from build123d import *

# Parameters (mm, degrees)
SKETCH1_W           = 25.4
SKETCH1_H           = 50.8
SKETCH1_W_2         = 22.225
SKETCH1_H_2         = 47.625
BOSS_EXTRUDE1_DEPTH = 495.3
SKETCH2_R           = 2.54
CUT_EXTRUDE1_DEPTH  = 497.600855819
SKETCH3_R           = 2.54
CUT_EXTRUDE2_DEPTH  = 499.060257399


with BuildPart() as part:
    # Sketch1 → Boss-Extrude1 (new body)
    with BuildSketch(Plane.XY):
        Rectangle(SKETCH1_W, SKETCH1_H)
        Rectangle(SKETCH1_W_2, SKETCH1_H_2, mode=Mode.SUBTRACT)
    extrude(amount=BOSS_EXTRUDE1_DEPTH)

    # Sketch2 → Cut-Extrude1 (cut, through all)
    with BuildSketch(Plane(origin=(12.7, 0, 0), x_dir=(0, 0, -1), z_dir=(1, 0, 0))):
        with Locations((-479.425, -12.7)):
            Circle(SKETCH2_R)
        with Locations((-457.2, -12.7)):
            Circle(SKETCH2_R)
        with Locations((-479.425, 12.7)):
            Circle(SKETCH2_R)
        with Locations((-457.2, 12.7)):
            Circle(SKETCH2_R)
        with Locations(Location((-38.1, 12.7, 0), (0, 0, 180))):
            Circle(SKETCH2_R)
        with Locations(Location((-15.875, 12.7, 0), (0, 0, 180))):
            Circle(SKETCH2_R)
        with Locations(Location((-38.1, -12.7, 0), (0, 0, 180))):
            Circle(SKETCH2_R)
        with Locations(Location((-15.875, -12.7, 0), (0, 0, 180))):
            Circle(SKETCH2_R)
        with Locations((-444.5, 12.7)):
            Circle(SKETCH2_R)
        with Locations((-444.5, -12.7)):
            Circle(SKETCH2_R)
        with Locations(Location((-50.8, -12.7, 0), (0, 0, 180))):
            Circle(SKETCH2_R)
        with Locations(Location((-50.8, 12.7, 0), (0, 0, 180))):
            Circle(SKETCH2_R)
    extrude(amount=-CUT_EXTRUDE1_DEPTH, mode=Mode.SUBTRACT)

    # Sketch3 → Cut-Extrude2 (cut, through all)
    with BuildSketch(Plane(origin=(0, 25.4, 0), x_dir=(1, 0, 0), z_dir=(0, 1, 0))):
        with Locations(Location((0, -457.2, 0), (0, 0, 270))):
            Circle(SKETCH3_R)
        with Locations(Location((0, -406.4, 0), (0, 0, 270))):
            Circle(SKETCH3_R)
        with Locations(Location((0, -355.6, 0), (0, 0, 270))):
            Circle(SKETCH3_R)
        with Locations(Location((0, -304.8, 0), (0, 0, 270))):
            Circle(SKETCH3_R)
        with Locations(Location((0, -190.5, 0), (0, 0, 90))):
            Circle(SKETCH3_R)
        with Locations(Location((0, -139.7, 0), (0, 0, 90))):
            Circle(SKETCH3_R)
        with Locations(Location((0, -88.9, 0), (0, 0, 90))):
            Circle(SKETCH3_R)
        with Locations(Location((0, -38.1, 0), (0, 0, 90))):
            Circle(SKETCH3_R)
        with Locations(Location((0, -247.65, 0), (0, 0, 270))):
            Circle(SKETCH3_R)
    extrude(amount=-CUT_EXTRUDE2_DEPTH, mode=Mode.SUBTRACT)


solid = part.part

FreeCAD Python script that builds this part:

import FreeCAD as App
import Part
import Sketcher

V = App.Vector
Q = App.Units.Quantity

doc = App.newDocument("Part")
body = doc.addObject("PartDesign::Body", "Body")

sketch1 = body.newObject("Sketcher::SketchObject", "Sketch")
sketch1.AttachmentSupport = (doc.getObject("XY_Plane"), [""])
sketch1.MapMode = "FlatFace"
sketch1.addGeometry(Part.LineSegment(V(-12.7, 25.4, 0), V(-12.7, -25.4, 0)), False)
sketch1.addGeometry(Part.LineSegment(V(-12.7, -25.4, 0), V(12.7, -25.4, 0)), False)
sketch1.addGeometry(Part.LineSegment(V(12.7, -25.4, 0), V(12.7, 25.4, 0)), False)
sketch1.addGeometry(Part.LineSegment(V(12.7, 25.4, 0), V(-12.7, 25.4, 0)), False)
sketch1.addGeometry(Part.LineSegment(V(11.1125, -23.8125, 0), V(-11.1125, -23.8125, 0)), False)
sketch1.addGeometry(Part.LineSegment(V(-11.1125, -23.8125, 0), V(-11.1125, 23.8125, 0)), False)
sketch1.addGeometry(Part.LineSegment(V(-11.1125, 23.8125, 0), V(11.1125, 23.8125, 0)), False)
sketch1.addGeometry(Part.LineSegment(V(11.1125, 23.8125, 0), V(11.1125, -23.8125, 0)), False)
sketch1.addConstraint(Sketcher.Constraint("Coincident", 0, 2, 1, 1))
sketch1.addConstraint(Sketcher.Constraint("Coincident", 1, 2, 2, 1))
sketch1.addConstraint(Sketcher.Constraint("Coincident", 2, 2, 3, 1))
sketch1.addConstraint(Sketcher.Constraint("Coincident", 3, 2, 0, 1))
sketch1.addConstraint(Sketcher.Constraint("Coincident", 4, 2, 5, 1))
sketch1.addConstraint(Sketcher.Constraint("Coincident", 5, 2, 6, 1))
sketch1.addConstraint(Sketcher.Constraint("Coincident", 6, 2, 7, 1))
sketch1.addConstraint(Sketcher.Constraint("Coincident", 7, 2, 4, 1))
sketch1.addConstraint(Sketcher.Constraint("Vertical", 0))
sketch1.addConstraint(Sketcher.Constraint("Horizontal", 1))
sketch1.addConstraint(Sketcher.Constraint("Vertical", 2))
sketch1.addConstraint(Sketcher.Constraint("Horizontal", 3))
sketch1.addConstraint(Sketcher.Constraint("Horizontal", 4))
sketch1.addConstraint(Sketcher.Constraint("Vertical", 5))
sketch1.addConstraint(Sketcher.Constraint("Horizontal", 6))
sketch1.addConstraint(Sketcher.Constraint("Vertical", 7))
sketch1.addConstraint(Sketcher.Constraint("Symmetric", 0, 2, 2, 2, -1, 1))
sketch1.addConstraint(Sketcher.Constraint("Symmetric", 4, 2, 6, 2, -1, 1))
sketch1.addConstraint(Sketcher.Constraint("DistanceX", 1, 1, 1, 2, Q("1 in")))
sketch1.addConstraint(Sketcher.Constraint("DistanceY", 0, 2, 0, 1, Q("2 in")))
sketch1.addConstraint(Sketcher.Constraint("DistanceX", 4, 2, 4, 1, Q("0.875 in")))
sketch1.addConstraint(Sketcher.Constraint("DistanceY", 5, 1, 5, 2, Q("1.875 in")))
pad1 = body.newObject("PartDesign::Pad", "Pad")
pad1.Profile = sketch1
pad1.Length = Q("19.5 in")

sketch2 = body.newObject("Sketcher::SketchObject", "Sketch001")
sketch2.AttachmentSupport = (doc.getObject("YZ_Plane"), [""])
sketch2.MapMode = "FlatFace"
sketch2.AttachmentOffset = App.Placement(V(0, 0, 0.5 * 25.4), App.Rotation())
sketch2.addGeometry(Part.Circle(V(-12.7, 479.425, 0), V(0, 0, 1), 2.54), False)
sketch2.addGeometry(Part.Circle(V(-12.7, 457.2, 0), V(0, 0, 1), 2.54), False)
sketch2.addGeometry(Part.Circle(V(12.7, 479.425, 0), V(0, 0, 1), 2.54), False)
sketch2.addGeometry(Part.Circle(V(12.7, 457.2, 0), V(0, 0, 1), 2.54), False)
sketch2.addGeometry(Part.Circle(V(12.7, 38.1, 0), V(0, 0, 1), 2.54), False)
sketch2.addGeometry(Part.Circle(V(12.7, 15.875, 0), V(0, 0, 1), 2.54), False)
sketch2.addGeometry(Part.Circle(V(-12.7, 38.1, 0), V(0, 0, 1), 2.54), False)
sketch2.addGeometry(Part.Circle(V(-12.7, 15.875, 0), V(0, 0, 1), 2.54), False)
sketch2.addGeometry(Part.Circle(V(12.7, 444.5, 0), V(0, 0, 1), 2.54), False)
sketch2.addGeometry(Part.Circle(V(-12.7, 444.5, 0), V(0, 0, 1), 2.54), False)
sketch2.addGeometry(Part.Circle(V(-12.7, 50.8, 0), V(0, 0, 1), 2.54), False)
sketch2.addGeometry(Part.Circle(V(12.7, 50.8, 0), V(0, 0, 1), 2.54), False)
sketch2.addConstraint(Sketcher.Constraint("Equal", 0, 1))
sketch2.addConstraint(Sketcher.Constraint("Equal", 1, 2))
sketch2.addConstraint(Sketcher.Constraint("Equal", 2, 3))
sketch2.addConstraint(Sketcher.Constraint("Equal", 3, 4))
sketch2.addConstraint(Sketcher.Constraint("Equal", 4, 5))
sketch2.addConstraint(Sketcher.Constraint("Equal", 5, 6))
sketch2.addConstraint(Sketcher.Constraint("Equal", 6, 7))
sketch2.addConstraint(Sketcher.Constraint("Equal", 7, 8))
sketch2.addConstraint(Sketcher.Constraint("Equal", 8, 9))
sketch2.addConstraint(Sketcher.Constraint("Equal", 9, 10))
sketch2.addConstraint(Sketcher.Constraint("Equal", 10, 11))
sketch2.addConstraint(Sketcher.Constraint("Symmetric", 0, 3, 2, 3, -2))
sketch2.addConstraint(Sketcher.Constraint("Symmetric", 1, 3, 3, 3, -2))
sketch2.addConstraint(Sketcher.Constraint("Symmetric", 4, 3, 6, 3, -2))
sketch2.addConstraint(Sketcher.Constraint("Symmetric", 5, 3, 7, 3, -2))
sketch2.addConstraint(Sketcher.Constraint("Symmetric", 8, 3, 9, 3, -2))
sketch2.addConstraint(Sketcher.Constraint("Symmetric", 10, 3, 11, 3, -2))
sketch2.addConstraint(Sketcher.Constraint("Vertical", 0, 3, 1, 3))
sketch2.addConstraint(Sketcher.Constraint("Vertical", 3, 3, 4, 3))
sketch2.addConstraint(Sketcher.Constraint("Vertical", 4, 3, 5, 3))
sketch2.addConstraint(Sketcher.Constraint("Vertical", 5, 3, 8, 3))
sketch2.addConstraint(Sketcher.Constraint("Vertical", 9, 3, 10, 3))
sketch2.addConstraint(Sketcher.Constraint("Diameter", 0, Q("0.2 in")))
sketch2.addConstraint(Sketcher.Constraint("DistanceY", -1, 1, 1, 3, Q("18 in")))
sketch2.addConstraint(Sketcher.Constraint("DistanceY", -1, 1, 10, 3, Q("2 in")))
sketch2.addConstraint(Sketcher.Constraint("DistanceX", 0, 3, 2, 3, Q("1 in")))
sketch2.addConstraint(Sketcher.Constraint("DistanceY", 4, 3, 8, 3, Q("16 in")))
sketch2.addConstraint(Sketcher.Constraint("DistanceY", -1, 1, 4, 3, Q("1.5 in")))
sketch2.addConstraint(Sketcher.Constraint("DistanceY", 5, 3, 2, 3, Q("18.25 in")))
sketch2.addConstraint(Sketcher.Constraint("DistanceY", -1, 1, 0, 3, Q("18.875 in")))
pocket1 = body.newObject("PartDesign::Pocket", "Pocket")
pocket1.Profile = sketch2
pocket1.Type = "ThroughAll"

sketch3 = body.newObject("Sketcher::SketchObject", "Sketch002")
sketch3.AttachmentSupport = (doc.getObject("XZ_Plane"), [""])
sketch3.MapMode = "FlatFace"
sketch3.AttachmentOffset = App.Placement(V(0, 0, -1 * 25.4), App.Rotation())
sketch3.addGeometry(Part.Circle(V(0, 457.2, 0), V(0, 0, 1), 2.54), False)
sketch3.addGeometry(Part.Circle(V(0, 406.4, 0), V(0, 0, 1), 2.54), False)
sketch3.addGeometry(Part.Circle(V(0, 355.6, 0), V(0, 0, 1), 2.54), False)
sketch3.addGeometry(Part.Circle(V(0, 304.8, 0), V(0, 0, 1), 2.54), False)
sketch3.addGeometry(Part.Circle(V(0, 190.5, 0), V(0, 0, 1), 2.54), False)
sketch3.addGeometry(Part.Circle(V(0, 139.7, 0), V(0, 0, 1), 2.54), False)
sketch3.addGeometry(Part.Circle(V(0, 88.9, 0), V(0, 0, 1), 2.54), False)
sketch3.addGeometry(Part.Circle(V(0, 38.1, 0), V(0, 0, 1), 2.54), False)
sketch3.addGeometry(Part.Circle(V(0, 247.65, 0), V(0, 0, 1), 2.54), False)
sketch3.addConstraint(Sketcher.Constraint("Equal", 0, 1))
sketch3.addConstraint(Sketcher.Constraint("Equal", 1, 2))
sketch3.addConstraint(Sketcher.Constraint("Equal", 2, 3))
sketch3.addConstraint(Sketcher.Constraint("Equal", 3, 4))
sketch3.addConstraint(Sketcher.Constraint("Equal", 4, 5))
sketch3.addConstraint(Sketcher.Constraint("Equal", 5, 6))
sketch3.addConstraint(Sketcher.Constraint("Equal", 6, 7))
sketch3.addConstraint(Sketcher.Constraint("Equal", 7, 8))
sketch3.addConstraint(Sketcher.Constraint("PointOnObject", 0, 3, -2))
sketch3.addConstraint(Sketcher.Constraint("PointOnObject", 1, 3, -2))
sketch3.addConstraint(Sketcher.Constraint("PointOnObject", 2, 3, -2))
sketch3.addConstraint(Sketcher.Constraint("PointOnObject", 3, 3, -2))
sketch3.addConstraint(Sketcher.Constraint("PointOnObject", 4, 3, -2))
sketch3.addConstraint(Sketcher.Constraint("PointOnObject", 5, 3, -2))
sketch3.addConstraint(Sketcher.Constraint("PointOnObject", 6, 3, -2))
sketch3.addConstraint(Sketcher.Constraint("PointOnObject", 7, 3, -2))
sketch3.addConstraint(Sketcher.Constraint("PointOnObject", 8, 3, -2))
sketch3.addConstraint(Sketcher.Constraint("Diameter", 0, Q("0.2 in")))
sketch3.addConstraint(Sketcher.Constraint("DistanceY", -1, 1, 0, 3, Q("18 in")))
sketch3.addConstraint(Sketcher.Constraint("DistanceY", -1, 1, 1, 3, Q("16 in")))
sketch3.addConstraint(Sketcher.Constraint("DistanceY", -1, 1, 2, 3, Q("14 in")))
sketch3.addConstraint(Sketcher.Constraint("DistanceY", -1, 1, 3, 3, Q("12 in")))
sketch3.addConstraint(Sketcher.Constraint("DistanceY", 5, 3, 4, 3, Q("2 in")))
sketch3.addConstraint(Sketcher.Constraint("DistanceY", 6, 3, 5, 3, Q("2 in")))
sketch3.addConstraint(Sketcher.Constraint("DistanceY", 7, 3, 6, 3, Q("2 in")))
sketch3.addConstraint(Sketcher.Constraint("DistanceY", -1, 1, 4, 3, Q("7.5 in")))
sketch3.addConstraint(Sketcher.Constraint("DistanceY", -1, 1, 8, 3, Q("9.75 in")))
pocket2 = body.newObject("PartDesign::Pocket", "Pocket001")
pocket2.Profile = sketch3
pocket2.Type = "ThroughAll"
pocket2.Reversed = True

doc.recompute()
